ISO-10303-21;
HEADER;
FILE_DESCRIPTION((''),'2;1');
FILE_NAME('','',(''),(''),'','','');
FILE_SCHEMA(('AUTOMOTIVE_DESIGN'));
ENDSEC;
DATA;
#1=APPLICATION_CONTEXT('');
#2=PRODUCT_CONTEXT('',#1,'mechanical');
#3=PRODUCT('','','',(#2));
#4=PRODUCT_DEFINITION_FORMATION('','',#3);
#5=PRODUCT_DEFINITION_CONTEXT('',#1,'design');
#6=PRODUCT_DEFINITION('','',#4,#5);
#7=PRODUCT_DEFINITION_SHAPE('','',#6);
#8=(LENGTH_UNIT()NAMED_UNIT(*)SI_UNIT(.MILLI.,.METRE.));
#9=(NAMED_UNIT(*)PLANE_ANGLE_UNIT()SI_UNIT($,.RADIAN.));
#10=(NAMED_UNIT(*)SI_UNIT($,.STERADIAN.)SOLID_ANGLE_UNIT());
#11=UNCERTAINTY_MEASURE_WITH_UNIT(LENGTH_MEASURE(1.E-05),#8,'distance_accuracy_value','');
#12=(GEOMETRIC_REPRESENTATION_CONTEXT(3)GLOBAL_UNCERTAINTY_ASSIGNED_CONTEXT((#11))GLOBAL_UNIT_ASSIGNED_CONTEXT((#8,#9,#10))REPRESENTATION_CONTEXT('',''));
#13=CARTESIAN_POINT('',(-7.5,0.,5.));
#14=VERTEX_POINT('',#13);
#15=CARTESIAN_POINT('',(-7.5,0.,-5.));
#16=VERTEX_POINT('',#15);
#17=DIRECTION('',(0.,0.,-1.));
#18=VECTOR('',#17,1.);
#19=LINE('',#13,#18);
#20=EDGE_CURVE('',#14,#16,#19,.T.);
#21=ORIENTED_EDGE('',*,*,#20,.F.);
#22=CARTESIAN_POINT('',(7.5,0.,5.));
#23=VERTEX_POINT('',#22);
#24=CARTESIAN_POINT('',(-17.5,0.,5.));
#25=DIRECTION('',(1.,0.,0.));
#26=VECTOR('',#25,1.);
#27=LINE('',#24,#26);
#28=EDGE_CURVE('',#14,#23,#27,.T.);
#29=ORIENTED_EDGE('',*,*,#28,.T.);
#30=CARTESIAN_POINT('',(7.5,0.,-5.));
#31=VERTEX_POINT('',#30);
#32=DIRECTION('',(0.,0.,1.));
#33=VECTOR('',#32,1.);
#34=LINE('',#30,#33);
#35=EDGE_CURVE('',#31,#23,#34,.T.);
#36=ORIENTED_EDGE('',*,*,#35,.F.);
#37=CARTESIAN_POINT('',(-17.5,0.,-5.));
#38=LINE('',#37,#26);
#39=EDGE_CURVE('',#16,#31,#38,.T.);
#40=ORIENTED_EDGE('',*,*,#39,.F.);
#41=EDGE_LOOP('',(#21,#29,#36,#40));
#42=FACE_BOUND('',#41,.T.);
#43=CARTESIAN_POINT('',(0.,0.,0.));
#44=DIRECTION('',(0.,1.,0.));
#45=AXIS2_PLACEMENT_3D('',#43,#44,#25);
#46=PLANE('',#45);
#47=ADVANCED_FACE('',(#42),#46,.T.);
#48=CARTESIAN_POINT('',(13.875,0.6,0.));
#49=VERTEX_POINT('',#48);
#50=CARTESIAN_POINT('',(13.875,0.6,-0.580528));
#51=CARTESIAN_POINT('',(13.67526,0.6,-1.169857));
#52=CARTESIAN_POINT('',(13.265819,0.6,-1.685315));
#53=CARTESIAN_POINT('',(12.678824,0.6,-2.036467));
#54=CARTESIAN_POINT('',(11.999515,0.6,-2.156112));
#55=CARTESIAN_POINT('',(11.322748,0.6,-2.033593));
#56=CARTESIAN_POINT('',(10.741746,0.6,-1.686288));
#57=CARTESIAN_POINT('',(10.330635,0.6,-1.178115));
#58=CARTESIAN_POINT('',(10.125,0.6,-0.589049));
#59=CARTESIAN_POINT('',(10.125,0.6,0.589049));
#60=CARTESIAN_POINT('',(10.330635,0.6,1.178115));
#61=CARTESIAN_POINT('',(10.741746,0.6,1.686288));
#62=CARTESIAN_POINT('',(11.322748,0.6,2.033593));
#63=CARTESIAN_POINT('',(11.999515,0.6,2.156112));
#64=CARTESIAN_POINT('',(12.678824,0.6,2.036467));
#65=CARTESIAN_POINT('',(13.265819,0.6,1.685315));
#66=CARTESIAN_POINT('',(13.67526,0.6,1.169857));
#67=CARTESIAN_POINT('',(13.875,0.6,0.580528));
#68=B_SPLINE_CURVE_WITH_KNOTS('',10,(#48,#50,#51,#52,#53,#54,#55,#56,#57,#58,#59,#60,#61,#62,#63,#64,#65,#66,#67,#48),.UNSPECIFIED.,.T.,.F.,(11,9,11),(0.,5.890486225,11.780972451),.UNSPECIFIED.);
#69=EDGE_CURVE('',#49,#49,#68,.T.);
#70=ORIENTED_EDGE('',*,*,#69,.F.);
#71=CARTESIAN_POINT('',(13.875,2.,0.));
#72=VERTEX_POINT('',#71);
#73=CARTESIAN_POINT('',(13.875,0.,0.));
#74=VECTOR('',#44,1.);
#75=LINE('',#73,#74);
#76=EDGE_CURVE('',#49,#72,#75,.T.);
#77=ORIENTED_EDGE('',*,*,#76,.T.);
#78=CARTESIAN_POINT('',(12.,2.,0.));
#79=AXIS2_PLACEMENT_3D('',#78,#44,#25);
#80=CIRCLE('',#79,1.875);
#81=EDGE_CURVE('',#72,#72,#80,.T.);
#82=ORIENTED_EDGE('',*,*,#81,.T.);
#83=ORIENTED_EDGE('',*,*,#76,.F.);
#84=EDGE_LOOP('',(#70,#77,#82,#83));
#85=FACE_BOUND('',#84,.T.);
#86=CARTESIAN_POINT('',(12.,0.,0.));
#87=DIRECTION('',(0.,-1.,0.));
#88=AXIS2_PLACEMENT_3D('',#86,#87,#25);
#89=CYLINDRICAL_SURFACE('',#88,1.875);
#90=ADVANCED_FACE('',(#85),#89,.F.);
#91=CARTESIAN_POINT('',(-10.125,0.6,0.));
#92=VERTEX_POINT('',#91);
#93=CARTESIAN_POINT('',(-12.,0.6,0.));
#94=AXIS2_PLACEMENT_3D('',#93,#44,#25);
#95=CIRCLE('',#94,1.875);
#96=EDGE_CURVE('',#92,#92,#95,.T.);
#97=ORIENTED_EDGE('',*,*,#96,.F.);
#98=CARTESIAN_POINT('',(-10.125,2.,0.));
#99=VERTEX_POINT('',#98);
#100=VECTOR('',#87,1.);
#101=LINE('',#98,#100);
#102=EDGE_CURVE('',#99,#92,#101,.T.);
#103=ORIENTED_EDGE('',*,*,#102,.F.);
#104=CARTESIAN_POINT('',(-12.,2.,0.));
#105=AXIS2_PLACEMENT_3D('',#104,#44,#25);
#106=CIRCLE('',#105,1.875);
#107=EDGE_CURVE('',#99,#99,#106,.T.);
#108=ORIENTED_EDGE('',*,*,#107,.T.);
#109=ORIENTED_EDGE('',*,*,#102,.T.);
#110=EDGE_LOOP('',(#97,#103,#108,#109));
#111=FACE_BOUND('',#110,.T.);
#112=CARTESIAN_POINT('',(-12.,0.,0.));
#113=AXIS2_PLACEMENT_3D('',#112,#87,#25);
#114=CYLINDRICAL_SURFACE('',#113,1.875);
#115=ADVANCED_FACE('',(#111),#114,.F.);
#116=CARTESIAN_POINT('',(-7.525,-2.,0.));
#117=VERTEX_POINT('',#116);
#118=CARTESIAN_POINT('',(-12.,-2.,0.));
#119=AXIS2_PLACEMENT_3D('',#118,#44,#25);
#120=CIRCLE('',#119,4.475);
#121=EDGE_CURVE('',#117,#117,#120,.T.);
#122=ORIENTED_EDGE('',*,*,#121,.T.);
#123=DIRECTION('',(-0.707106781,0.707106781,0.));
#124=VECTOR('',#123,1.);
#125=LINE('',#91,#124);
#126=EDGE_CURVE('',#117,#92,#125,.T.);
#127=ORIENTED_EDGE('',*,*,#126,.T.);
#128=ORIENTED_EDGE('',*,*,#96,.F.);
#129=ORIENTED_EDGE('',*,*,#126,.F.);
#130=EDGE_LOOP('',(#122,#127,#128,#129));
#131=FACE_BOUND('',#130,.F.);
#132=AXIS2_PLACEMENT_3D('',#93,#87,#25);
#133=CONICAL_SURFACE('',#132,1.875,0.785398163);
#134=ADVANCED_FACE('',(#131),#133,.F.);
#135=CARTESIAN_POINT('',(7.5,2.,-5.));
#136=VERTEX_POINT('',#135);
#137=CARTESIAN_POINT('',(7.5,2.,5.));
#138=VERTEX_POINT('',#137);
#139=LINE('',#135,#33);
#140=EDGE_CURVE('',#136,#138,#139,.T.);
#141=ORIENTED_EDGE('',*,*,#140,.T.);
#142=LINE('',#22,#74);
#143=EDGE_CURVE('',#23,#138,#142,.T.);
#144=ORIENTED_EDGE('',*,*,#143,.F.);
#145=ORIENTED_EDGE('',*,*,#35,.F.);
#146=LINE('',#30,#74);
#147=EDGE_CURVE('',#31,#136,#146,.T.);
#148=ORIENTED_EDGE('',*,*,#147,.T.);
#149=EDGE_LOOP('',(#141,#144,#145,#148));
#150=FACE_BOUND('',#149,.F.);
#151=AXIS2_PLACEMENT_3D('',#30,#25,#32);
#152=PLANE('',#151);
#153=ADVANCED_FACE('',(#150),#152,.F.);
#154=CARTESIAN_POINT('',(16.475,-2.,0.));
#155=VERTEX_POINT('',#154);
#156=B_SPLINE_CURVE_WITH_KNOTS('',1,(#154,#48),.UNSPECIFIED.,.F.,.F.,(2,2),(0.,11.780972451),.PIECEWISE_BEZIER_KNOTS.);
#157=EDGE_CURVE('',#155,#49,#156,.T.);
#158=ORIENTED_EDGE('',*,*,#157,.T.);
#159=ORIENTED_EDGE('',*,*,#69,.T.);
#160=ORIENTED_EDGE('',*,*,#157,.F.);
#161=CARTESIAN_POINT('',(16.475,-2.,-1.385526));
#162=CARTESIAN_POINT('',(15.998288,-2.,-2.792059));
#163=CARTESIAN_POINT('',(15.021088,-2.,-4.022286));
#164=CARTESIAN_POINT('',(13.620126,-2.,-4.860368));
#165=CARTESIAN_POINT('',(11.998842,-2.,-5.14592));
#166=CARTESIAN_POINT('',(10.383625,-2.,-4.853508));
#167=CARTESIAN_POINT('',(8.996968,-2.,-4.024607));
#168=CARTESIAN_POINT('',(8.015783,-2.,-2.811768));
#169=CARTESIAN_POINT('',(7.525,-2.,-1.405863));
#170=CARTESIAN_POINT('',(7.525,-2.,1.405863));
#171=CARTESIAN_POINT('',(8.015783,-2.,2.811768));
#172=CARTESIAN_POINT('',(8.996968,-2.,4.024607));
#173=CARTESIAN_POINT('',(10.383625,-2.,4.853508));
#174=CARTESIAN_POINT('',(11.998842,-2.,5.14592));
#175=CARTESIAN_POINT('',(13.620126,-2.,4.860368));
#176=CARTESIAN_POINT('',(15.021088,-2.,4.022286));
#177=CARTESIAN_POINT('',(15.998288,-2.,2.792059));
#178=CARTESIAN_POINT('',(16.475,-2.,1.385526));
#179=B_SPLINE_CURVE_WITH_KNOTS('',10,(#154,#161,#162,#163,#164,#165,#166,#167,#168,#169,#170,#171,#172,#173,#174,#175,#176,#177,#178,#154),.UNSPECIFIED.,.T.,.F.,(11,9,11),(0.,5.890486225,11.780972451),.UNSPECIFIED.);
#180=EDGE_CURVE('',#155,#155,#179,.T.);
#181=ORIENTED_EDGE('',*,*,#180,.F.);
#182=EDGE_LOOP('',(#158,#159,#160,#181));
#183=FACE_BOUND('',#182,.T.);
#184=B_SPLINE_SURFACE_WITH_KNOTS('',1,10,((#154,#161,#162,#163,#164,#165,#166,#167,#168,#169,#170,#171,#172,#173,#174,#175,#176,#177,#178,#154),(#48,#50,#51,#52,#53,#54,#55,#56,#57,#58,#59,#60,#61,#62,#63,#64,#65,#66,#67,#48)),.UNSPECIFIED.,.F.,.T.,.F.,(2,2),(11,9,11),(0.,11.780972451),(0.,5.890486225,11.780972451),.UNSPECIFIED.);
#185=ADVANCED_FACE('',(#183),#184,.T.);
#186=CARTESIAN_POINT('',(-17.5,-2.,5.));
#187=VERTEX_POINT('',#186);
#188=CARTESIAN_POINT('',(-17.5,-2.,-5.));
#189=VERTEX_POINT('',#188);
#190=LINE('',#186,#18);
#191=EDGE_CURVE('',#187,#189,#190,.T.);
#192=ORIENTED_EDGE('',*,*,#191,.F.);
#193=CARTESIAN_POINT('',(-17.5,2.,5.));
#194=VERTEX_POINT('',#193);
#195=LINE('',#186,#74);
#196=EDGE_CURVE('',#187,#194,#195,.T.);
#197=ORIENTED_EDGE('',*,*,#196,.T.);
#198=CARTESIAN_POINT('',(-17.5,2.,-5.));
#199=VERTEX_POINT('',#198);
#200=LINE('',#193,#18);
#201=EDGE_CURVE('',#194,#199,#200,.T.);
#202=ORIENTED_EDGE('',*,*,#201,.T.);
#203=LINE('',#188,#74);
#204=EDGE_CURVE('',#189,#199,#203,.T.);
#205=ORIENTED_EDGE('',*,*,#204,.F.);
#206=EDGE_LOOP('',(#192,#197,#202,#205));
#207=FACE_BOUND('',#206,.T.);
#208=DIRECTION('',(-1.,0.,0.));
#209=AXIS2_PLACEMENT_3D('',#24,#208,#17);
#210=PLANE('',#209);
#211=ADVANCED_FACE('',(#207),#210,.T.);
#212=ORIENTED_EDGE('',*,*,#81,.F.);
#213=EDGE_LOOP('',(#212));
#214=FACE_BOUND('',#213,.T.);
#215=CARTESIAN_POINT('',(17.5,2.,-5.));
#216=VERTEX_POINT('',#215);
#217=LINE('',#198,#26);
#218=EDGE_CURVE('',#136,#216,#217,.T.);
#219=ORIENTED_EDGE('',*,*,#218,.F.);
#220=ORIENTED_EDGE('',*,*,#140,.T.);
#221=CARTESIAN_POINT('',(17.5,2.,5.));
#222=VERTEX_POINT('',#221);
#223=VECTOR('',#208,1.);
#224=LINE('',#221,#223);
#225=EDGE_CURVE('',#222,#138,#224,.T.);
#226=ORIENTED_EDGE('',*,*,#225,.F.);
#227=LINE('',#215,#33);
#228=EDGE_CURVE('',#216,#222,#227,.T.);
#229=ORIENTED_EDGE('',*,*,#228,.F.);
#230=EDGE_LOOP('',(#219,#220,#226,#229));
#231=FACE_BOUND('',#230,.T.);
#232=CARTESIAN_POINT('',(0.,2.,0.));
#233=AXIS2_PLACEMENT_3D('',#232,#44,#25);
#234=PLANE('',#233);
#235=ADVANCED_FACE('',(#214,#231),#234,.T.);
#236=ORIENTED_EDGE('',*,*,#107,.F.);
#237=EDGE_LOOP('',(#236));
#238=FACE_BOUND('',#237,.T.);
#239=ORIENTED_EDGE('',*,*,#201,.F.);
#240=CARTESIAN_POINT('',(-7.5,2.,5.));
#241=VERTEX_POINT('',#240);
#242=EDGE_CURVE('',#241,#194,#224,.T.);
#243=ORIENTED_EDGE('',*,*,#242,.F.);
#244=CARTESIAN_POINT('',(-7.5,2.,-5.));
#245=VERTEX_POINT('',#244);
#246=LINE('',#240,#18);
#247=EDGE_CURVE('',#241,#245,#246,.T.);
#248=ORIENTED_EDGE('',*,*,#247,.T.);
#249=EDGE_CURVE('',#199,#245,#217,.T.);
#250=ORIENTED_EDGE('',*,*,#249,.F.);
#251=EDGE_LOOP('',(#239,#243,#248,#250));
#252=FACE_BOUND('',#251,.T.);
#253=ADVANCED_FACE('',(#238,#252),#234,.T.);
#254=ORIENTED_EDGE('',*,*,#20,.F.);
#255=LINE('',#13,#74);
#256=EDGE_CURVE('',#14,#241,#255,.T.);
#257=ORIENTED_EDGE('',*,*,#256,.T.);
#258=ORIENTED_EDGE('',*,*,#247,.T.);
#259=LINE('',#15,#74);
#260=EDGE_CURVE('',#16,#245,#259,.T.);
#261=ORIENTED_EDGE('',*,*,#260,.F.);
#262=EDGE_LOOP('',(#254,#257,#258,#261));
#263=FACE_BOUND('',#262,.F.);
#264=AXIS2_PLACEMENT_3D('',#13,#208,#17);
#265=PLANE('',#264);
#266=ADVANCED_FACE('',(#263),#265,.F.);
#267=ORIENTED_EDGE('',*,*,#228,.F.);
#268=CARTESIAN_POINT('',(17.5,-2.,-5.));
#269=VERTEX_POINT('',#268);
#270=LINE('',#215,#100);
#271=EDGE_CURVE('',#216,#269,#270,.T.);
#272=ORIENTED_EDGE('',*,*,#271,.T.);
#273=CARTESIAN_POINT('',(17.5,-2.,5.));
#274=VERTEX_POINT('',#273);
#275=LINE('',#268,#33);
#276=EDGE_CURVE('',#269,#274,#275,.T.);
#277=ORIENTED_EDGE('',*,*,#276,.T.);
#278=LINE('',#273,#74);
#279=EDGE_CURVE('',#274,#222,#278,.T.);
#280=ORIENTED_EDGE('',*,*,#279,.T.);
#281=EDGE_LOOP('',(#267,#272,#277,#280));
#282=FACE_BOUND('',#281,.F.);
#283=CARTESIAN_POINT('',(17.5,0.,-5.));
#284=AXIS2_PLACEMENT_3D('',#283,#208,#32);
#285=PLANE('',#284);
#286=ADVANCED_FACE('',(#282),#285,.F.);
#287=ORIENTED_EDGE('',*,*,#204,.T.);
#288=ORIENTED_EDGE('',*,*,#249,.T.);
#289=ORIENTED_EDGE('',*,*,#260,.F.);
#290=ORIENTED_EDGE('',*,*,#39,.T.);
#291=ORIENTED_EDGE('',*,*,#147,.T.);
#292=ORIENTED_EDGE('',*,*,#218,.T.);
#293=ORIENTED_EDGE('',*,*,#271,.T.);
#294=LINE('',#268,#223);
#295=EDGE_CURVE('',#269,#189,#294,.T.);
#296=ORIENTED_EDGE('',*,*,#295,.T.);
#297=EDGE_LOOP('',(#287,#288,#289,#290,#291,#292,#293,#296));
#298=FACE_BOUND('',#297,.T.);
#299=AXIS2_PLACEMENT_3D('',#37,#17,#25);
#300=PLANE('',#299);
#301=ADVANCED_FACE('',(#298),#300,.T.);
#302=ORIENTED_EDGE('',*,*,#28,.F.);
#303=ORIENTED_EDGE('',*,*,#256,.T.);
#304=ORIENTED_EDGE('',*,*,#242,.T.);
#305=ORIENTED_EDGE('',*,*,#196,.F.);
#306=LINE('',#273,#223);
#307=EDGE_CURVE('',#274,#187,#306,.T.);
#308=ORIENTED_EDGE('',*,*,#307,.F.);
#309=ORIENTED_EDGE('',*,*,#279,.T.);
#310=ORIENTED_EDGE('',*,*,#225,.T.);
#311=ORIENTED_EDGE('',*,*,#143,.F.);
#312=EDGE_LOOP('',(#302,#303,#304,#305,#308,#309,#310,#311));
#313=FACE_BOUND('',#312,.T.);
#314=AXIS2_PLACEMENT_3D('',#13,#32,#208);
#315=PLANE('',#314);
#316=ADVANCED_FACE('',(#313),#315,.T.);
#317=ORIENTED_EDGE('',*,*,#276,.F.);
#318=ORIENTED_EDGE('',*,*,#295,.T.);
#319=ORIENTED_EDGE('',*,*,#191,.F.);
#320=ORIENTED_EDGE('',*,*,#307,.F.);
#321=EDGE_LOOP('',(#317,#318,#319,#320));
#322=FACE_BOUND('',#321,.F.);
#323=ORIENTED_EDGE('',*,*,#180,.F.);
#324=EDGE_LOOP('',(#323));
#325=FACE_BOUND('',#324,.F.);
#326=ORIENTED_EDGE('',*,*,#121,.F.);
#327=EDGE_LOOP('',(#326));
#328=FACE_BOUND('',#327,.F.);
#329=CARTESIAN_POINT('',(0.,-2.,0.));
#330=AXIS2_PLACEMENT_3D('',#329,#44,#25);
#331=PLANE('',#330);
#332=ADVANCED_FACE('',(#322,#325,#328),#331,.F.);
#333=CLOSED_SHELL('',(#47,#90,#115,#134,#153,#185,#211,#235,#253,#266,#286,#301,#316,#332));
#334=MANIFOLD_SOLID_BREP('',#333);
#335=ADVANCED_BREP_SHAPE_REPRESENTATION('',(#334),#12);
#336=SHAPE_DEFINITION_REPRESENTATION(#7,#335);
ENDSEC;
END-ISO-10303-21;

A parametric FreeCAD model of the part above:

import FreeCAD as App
import Part
import Sketcher
from FreeCAD import Vector
Q = App.Units.Quantity


def edges_at(feature, points):
    """Names of the edges that pass closest to the given points."""
    edges = feature.Shape.Edges
    near = lambda p: min(range(len(edges)), key=lambda i: edges[i].distToShape(Part.Vertex(*p))[0])
    return sorted({f"Edge{near(p) + 1}" for p in points})

doc = App.newDocument("Part")
body = doc.addObject("PartDesign::Body", "Body")
body.AllowCompound = True

sketch1 = body.newObject("Sketcher::SketchObject", "Sketch")
sketch1.AttachmentSupport = (doc.getObject("XZ_Plane"), [""])
sketch1.MapMode = "FlatFace"
sketch1.addGeometry([
    Part.LineSegment(Vector(-7.5, -5, 0), Vector(-17.5, -5, 0)),
    Part.LineSegment(Vector(-17.5, -5, 0), Vector(-17.5, 5, 0)),
    Part.LineSegment(Vector(-17.5, 5, 0), Vector(-7.5, 5, 0)),
    Part.LineSegment(Vector(-7.5, 5, 0), Vector(-7.5, -5, 0)),
    Part.Circle(Vector(-12, 0, 0), Vector(0, 0, 1), 1.875),
    Part.LineSegment(Vector(17.5, -5, 0), Vector(7.5, -5, 0)),
    Part.LineSegment(Vector(7.5, -5, 0), Vector(7.5, 5, 0)),
    Part.LineSegment(Vector(7.5, 5, 0), Vector(17.5, 5, 0)),
    Part.LineSegment(Vector(17.5, 5, 0), Vector(17.5, -5, 0)),
    Part.Circle(Vector(12, 0, 0), Vector(0, 0, 1), 1.875),
], False)
sketch1.addConstraint([
    Sketcher.Constraint("Coincident", 0, 2, 1, 1),
    Sketcher.Constraint("Coincident", 1, 2, 2, 1),
    Sketcher.Constraint("Coincident", 2, 2, 3, 1),
    Sketcher.Constraint("Coincident", 3, 2, 0, 1),
    Sketcher.Constraint("Coincident", 5, 2, 6, 1),
    Sketcher.Constraint("Coincident", 6, 2, 7, 1),
    Sketcher.Constraint("Coincident", 7, 2, 8, 1),
    Sketcher.Constraint("Coincident", 8, 2, 5, 1),
    Sketcher.Constraint("Horizontal", 0),
    Sketcher.Constraint("Vertical", 1),
    Sketcher.Constraint("Horizontal", 2),
    Sketcher.Constraint("Vertical", 3),
    Sketcher.Constraint("Horizontal", 5),
    Sketcher.Constraint("Vertical", 6),
    Sketcher.Constraint("Horizontal", 7),
    Sketcher.Constraint("Vertical", 8),
    Sketcher.Constraint("Equal", 4, 9),
    Sketcher.Constraint("Symmetric", 4, 3, 9, 3, -1, 1),
    Sketcher.Constraint("Symmetric", 2, 2, 5, 2, -1, 1),
    Sketcher.Constraint("Symmetric", 0, 2, 7, 2, -1, 1),
    Sketcher.Constraint("PointOnObject", 4, 3, -1),
    Sketcher.Constraint("Horizontal", 3, 2, 5, 2),
    Sketcher.Constraint("Equal", 7, 1),
    Sketcher.Constraint("Diameter", 4, Q("3.75 mm")),
    Sketcher.Constraint("DistanceX", 0, 2, 0, 1, Q("10 mm")),
    Sketcher.Constraint("DistanceX", 3, 2, 5, 2, Q("15 mm")),
    Sketcher.Constraint("DistanceX", 4, 3, -1, 1, Q("12 mm")),
])
pad1 = body.newObject("PartDesign::Pad", "Pad")
pad1.Profile = sketch1
pad1.Length = 2
pad1.Reversed = True

sketch2 = body.newObject("Sketcher::SketchObject", "Sketch001")
sketch2.AttachmentSupport = (doc.getObject("XZ_Plane"), [""])
sketch2.MapMode = "FlatFace"
sketch2.addGeometry([
    Part.LineSegment(Vector(-17.5, -5, 0), Vector(-17.5, 5, 0)),
    Part.LineSegment(Vector(-17.5, 5, 0), Vector(17.5, 5, 0)),
    Part.LineSegment(Vector(17.5, 5, 0), Vector(17.5, -5, 0)),
    Part.LineSegment(Vector(17.5, -5, 0), Vector(-17.5, -5, 0)),
    Part.Circle(Vector(-12, 0, 0), Vector(0, 0, 1), 1.875),
    Part.Circle(Vector(12, 0, 0), Vector(0, 0, 1), 1.875),
], False)
sketch2.addConstraint([
    Sketcher.Constraint("Coincident", 0, 2, 1, 1),
    Sketcher.Constraint("Coincident", 1, 2, 2, 1),
    Sketcher.Constraint("Coincident", 2, 2, 3, 1),
    Sketcher.Constraint("Coincident", 3, 2, 0, 1),
    Sketcher.Constraint("Vertical", 0),
    Sketcher.Constraint("Horizontal", 1),
    Sketcher.Constraint("Vertical", 2),
    Sketcher.Constraint("Horizontal", 3),
    Sketcher.Constraint("Equal", 4, 5),
    Sketcher.Constraint("Symmetric", 4, 3, 5, 3, -1, 1),
    Sketcher.Constraint("Symmetric", 0, 2, 2, 2, -1, 1),
    Sketcher.Constraint("PointOnObject", 4, 3, -1),
    Sketcher.Constraint("Diameter", 4, Q("3.75 mm")),
    Sketcher.Constraint("DistanceX", 1, 1, 1, 2, Q("35 mm")),
    Sketcher.Constraint("DistanceY", 0, 1, 0, 2, Q("10 mm")),
    Sketcher.Constraint("DistanceX", 4, 3, -1, 1, Q("12 mm")),
])
pad2 = body.newObject("PartDesign::Pad", "Pad001")
pad2.Profile = sketch2
pad2.Length = 2
doc.recompute()

chamfer = body.newObject("PartDesign::Chamfer", "Chamfer")
chamfer.Base = (pad2, edges_at(pad2, [(-13.748, -2, 0.678), (10.252, -2, 0.678)]))
chamfer.Size = 2.6

doc.recompute()
